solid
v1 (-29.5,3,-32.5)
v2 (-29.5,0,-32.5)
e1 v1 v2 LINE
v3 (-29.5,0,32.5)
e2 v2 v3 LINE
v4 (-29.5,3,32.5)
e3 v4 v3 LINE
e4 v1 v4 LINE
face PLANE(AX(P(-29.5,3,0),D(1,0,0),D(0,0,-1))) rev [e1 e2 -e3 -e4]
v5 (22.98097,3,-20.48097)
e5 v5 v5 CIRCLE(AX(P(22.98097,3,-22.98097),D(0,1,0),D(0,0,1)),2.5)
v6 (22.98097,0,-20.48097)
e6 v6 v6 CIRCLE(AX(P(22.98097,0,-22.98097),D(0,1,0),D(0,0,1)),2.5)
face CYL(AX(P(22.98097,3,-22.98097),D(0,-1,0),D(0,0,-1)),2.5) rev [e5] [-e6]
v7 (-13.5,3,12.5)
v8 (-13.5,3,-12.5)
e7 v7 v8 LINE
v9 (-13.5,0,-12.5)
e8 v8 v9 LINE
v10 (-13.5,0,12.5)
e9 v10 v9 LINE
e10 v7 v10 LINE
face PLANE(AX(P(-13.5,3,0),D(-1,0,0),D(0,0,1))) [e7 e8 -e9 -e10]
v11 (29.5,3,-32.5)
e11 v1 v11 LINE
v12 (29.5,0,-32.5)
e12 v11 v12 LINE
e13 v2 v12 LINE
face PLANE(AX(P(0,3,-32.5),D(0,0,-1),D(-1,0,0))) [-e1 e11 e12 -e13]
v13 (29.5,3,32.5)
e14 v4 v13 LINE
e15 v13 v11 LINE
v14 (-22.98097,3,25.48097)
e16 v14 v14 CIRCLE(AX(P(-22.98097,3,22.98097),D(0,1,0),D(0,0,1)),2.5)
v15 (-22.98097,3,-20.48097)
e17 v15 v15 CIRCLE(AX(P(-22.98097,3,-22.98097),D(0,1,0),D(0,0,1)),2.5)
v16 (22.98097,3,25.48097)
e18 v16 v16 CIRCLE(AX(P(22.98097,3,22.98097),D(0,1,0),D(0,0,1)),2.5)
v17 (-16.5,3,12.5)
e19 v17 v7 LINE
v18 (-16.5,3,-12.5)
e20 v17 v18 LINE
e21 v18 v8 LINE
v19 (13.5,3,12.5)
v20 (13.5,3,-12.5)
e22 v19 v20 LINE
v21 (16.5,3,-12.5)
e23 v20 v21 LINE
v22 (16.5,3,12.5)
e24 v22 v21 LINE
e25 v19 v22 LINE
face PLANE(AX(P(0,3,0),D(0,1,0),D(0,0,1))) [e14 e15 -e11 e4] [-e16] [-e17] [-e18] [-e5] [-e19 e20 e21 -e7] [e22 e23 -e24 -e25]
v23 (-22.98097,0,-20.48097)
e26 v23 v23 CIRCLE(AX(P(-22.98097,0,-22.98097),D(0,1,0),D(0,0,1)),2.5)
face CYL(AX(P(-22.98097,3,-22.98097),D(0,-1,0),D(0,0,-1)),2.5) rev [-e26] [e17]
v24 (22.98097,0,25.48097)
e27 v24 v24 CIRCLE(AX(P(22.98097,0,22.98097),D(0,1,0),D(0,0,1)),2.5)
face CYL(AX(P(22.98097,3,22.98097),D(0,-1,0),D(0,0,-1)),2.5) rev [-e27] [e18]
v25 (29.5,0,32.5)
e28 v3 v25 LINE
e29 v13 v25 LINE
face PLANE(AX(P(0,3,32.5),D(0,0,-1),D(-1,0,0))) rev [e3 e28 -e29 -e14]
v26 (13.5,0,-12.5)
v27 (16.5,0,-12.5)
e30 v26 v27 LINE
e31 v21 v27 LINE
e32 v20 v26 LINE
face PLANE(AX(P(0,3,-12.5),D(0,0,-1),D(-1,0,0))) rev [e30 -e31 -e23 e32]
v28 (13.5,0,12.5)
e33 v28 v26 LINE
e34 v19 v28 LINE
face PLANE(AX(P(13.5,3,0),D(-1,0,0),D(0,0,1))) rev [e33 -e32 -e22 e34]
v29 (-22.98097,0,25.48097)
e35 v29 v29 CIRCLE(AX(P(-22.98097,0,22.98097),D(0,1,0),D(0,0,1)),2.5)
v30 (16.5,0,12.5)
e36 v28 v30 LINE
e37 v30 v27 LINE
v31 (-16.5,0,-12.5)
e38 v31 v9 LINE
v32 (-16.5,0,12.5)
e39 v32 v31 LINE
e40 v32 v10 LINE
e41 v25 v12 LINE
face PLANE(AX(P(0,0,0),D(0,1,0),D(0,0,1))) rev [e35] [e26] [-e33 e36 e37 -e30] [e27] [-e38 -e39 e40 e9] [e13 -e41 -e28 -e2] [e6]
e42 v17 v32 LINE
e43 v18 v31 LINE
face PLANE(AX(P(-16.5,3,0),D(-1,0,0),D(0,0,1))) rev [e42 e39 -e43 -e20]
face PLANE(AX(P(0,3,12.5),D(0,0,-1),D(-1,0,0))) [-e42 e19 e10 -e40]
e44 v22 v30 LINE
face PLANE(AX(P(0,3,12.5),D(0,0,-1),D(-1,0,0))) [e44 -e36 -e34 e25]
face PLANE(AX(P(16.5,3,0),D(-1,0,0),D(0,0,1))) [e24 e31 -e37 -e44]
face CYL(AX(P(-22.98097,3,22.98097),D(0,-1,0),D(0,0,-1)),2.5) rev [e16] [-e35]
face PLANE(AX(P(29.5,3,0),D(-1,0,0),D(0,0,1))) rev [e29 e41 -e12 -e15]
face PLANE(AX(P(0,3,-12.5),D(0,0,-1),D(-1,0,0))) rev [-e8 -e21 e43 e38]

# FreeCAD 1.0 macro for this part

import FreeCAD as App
import Part
import Sketcher
from FreeCAD import Vector


def add_polygon(sketch, points):
    """Adds a closed chain of lines whose ends are joined by coincident constraints."""
    first, n = sketch.GeometryCount, len(points)
    for a, b in zip(points, points[1:] + points[:1]):
        sketch.addGeometry(Part.LineSegment(App.Vector(*a, 0), App.Vector(*b, 0)), False)
    for i in range(n):
        sketch.addConstraint(Sketcher.Constraint("Coincident", first + i, 2, first + (i + 1) % n, 1))

doc = App.newDocument("Part")
body = doc.addObject("PartDesign::Body", "Body")

sketch1 = body.newObject("Sketcher::SketchObject", "Sketch")
sketch1.AttachmentSupport = (doc.getObject("XZ_Plane"), [""])
sketch1.MapMode = "FlatFace"
add_polygon(sketch1, [(-29.5, -32.5), (-29.5, 32.5), (29.5, 32.5), (29.5, -32.5)])
sketch1.addGeometry(Part.Circle(Vector(-22.98097, 22.98097, 0), Vector(0, 0, 1), 2.5), False)
sketch1.addGeometry(Part.Circle(Vector(22.98097, 22.98097, 0), Vector(0, 0, 1), 2.5), False)
add_polygon(sketch1, [(-13.5, 12.5), (-16.5, 12.5), (-16.5, -12.5), (-13.5, -12.5)])
sketch1.addGeometry(Part.Circle(Vector(-22.98097, -22.98097, 0), Vector(0, 0, 1), 2.5), False)
add_polygon(sketch1, [(16.5, 12.5), (13.5, 12.5), (13.5, -12.5), (16.5, -12.5)])
sketch1.addGeometry(Part.Circle(Vector(22.98097, -22.98097, 0), Vector(0, 0, 1), 2.5), False)
sketch1.addConstraint(Sketcher.Constraint("Vertical", 0))
sketch1.addConstraint(Sketcher.Constraint("Horizontal", 1))
sketch1.addConstraint(Sketcher.Constraint("Vertical", 2))
sketch1.addConstraint(Sketcher.Constraint("Horizontal", 3))
sketch1.addConstraint(Sketcher.Constraint("Horizontal", 6))
sketch1.addConstraint(Sketcher.Constraint("Vertical", 7))
sketch1.addConstraint(Sketcher.Constraint("Horizontal", 8))
sketch1.addConstraint(Sketcher.Constraint("Vertical", 9))
sketch1.addConstraint(Sketcher.Constraint("Horizontal", 11))
sketch1.addConstraint(Sketcher.Constraint("Vertical", 12))
sketch1.addConstraint(Sketcher.Constraint("Horizontal", 13))
sketch1.addConstraint(Sketcher.Constraint("Vertical", 14))
sketch1.addConstraint(Sketcher.Constraint("Equal", 4, 5))
sketch1.addConstraint(Sketcher.Constraint("Equal", 5, 10))
sketch1.addConstraint(Sketcher.Constraint("Equal", 10, 15))
sketch1.addConstraint(Sketcher.Constraint("Symmetric", 5, 3, 10, 3, -1, 1))
sketch1.addConstraint(Sketcher.Constraint("Symmetric", 4, 3, 15, 3, -1, 1))
sketch1.addConstraint(Sketcher.Constraint("Symmetric", 0, 2, 2, 2, -1, 1))
sketch1.addConstraint(Sketcher.Constraint("Symmetric", 8, 2, 11, 2, -1, 1))
sketch1.addConstraint(Sketcher.Constraint("Symmetric", 6, 2, 13, 2, -1, 1))
sketch1.addConstraint(Sketcher.Constraint("Symmetric", 4, 3, 5, 3, -2))
sketch1.addConstraint(Sketcher.Constraint("Horizontal", 9, 2, 11, 2))
sketch1.addConstraint(Sketcher.Constraint("Diameter", 4, 5.0))
sketch1.addConstraint(Sketcher.Constraint("DistanceX", 1, 1, 1, 2, 59.0))
sketch1.addConstraint(Sketcher.Constraint("DistanceX", 6, 2, 6, 1, 3.0))
sketch1.addConstraint(Sketcher.Constraint("DistanceY", 0, 1, 0, 2, 65.0))
sketch1.addConstraint(Sketcher.Constraint("DistanceY", 7, 2, 7, 1, 25.0))
sketch1.addConstraint(Sketcher.Constraint("DistanceX", 0, 2, 6, 2, 13.0))
sketch1.addConstraint(Sketcher.Constraint("DistanceX", 4, 3, -1, 1, 22.98097))
sketch1.addConstraint(Sketcher.Constraint("DistanceY", -1, 1, 4, 3, 22.98097))
pad1 = body.newObject("PartDesign::Pad", "Pad")
pad1.Profile = sketch1
pad1.Length = 3
pad1.Reversed = True

doc.recompute()
